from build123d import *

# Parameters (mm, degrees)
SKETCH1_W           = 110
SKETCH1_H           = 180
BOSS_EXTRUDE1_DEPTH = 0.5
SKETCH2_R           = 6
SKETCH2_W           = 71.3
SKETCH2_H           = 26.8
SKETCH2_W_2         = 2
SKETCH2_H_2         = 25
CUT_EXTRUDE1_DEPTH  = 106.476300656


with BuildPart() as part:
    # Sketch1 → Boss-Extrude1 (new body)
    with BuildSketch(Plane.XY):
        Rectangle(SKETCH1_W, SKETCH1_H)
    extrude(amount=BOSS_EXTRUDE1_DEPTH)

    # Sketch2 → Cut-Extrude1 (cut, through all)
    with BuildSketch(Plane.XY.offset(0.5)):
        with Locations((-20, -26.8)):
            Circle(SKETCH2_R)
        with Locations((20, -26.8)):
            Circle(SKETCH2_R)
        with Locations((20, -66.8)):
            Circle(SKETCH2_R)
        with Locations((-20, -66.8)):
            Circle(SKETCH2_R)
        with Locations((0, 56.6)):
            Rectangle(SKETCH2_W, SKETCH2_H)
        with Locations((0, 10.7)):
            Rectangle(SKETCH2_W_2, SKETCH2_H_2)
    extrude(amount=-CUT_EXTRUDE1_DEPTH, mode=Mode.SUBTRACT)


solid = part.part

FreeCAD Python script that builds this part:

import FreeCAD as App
import Part
import Sketcher


def add_polygon(sketch, points):
    """Adds a closed chain of lines whose ends are joined by coincident constraints."""
    first, n = sketch.GeometryCount, len(points)
    for a, b in zip(points, points[1:] + points[:1]):
        sketch.addGeometry(Part.LineSegment(App.Vector(*a, 0), App.Vector(*b, 0)), False)
    for i in range(n):
        sketch.addConstraint(Sketcher.Constraint("Coincident", first + i, 2, first + (i + 1) % n, 1))

doc = App.newDocument("Part")
body = doc.addObject("PartDesign::Body", "Body")

# Sketch on XY plane
sketch1 = body.newObject("Sketcher::SketchObject", "Sketch")
sketch1.AttachmentSupport = (doc.getObject("XY_Plane"), [""])
sketch1.MapMode = "FlatFace"
add_polygon(sketch1, [(-55, 90), (-55, -90), (55, -90), (55, 90)])  # lines 0-3
sketch1.addConstraint(Sketcher.Constraint("Vertical", 0))
sketch1.addConstraint(Sketcher.Constraint("Horizontal", 1))
sketch1.addConstraint(Sketcher.Constraint("Vertical", 2))
sketch1.addConstraint(Sketcher.Constraint("Horizontal", 3))
sketch1.addConstraint(Sketcher.Constraint("Symmetric", 0, 2, 2, 2, -1, 1))
sketch1.addConstraint(Sketcher.Constraint("DistanceX", 1, 1, 1, 2, 110.0))
sketch1.addConstraint(Sketcher.Constraint("DistanceY", 0, 2, 0, 1, 180.0))
pad1 = body.newObject("PartDesign::Pad", "Pad")
pad1.Profile = sketch1
pad1.Length = 0.5

# Sketch on XY plane
sketch2 = body.newObject("Sketcher::SketchObject", "Sketch001")
sketch2.AttachmentSupport = (doc.getObject("XY_Plane"), [""])
sketch2.MapMode = "FlatFace"
sketch2.AttachmentOffset = App.Placement(App.Vector(0, 0, 0.5), App.Rotation())
sketch2.addGeometry(Part.Circle(App.Vector(-20, -26.8, 0), App.Vector(0, 0, 1), 6), False)  # 0
sketch2.addGeometry(Part.Circle(App.Vector(20, -26.8, 0), App.Vector(0, 0, 1), 6), False)  # 1
sketch2.addGeometry(Part.Circle(App.Vector(20, -66.8, 0), App.Vector(0, 0, 1), 6), False)  # 2
sketch2.addGeometry(Part.Circle(App.Vector(-20, -66.8, 0), App.Vector(0, 0, 1), 6), False)  # 3
add_polygon(sketch2, [(-35.6, 70), (-35.6, 43.2), (35.6, 43.2), (35.6, 70)])  # lines 4-7
add_polygon(sketch2, [(-1, 23.2), (-1, -1.8), (1, -1.8), (1, 23.2)])  # lines 8-11
sketch2.addConstraint(Sketcher.Constraint("Vertical", 4))
sketch2.addConstraint(Sketcher.Constraint("Horizontal", 5))
sketch2.addConstraint(Sketcher.Constraint("Vertical", 6))
sketch2.addConstraint(Sketcher.Constraint("Horizontal", 7))
sketch2.addConstraint(Sketcher.Constraint("Vertical", 8))
sketch2.addConstraint(Sketcher.Constraint("Horizontal", 9))
sketch2.addConstraint(Sketcher.Constraint("Vertical", 10))
sketch2.addConstraint(Sketcher.Constraint("Horizontal", 11))
sketch2.addConstraint(Sketcher.Constraint("Equal", 0, 1))
sketch2.addConstraint(Sketcher.Constraint("Equal", 1, 2))
sketch2.addConstraint(Sketcher.Constraint("Equal", 2, 3))
sketch2.addConstraint(Sketcher.Constraint("Symmetric", 0, 3, 1, 3, -2))
sketch2.addConstraint(Sketcher.Constraint("Symmetric", 2, 3, 3, 3, -2))
sketch2.addConstraint(Sketcher.Constraint("Vertical", 1, 3, 2, 3))
sketch2.addConstraint(Sketcher.Constraint("Diameter", 0, 12.0))
sketch2.addConstraint(Sketcher.Constraint("DistanceX", 9, 1, 9, 2, 2.0))
sketch2.addConstraint(Sketcher.Constraint("DistanceY", 8, 2, 8, 1, 25.0))
sketch2.addConstraint(Sketcher.Constraint("DistanceX", 5, 1, 5, 2, 71.3))
sketch2.addConstraint(Sketcher.Constraint("DistanceY", 4, 2, 4, 1, 26.8))
sketch2.addConstraint(Sketcher.Constraint("DistanceX", 0, 3, -1, 1, 20.0))
sketch2.addConstraint(Sketcher.Constraint("DistanceY", -1, 1, 6, 2, 70.0))
sketch2.addConstraint(Sketcher.Constraint("DistanceX", 8, 2, -1, 1, 1.0))
sketch2.addConstraint(Sketcher.Constraint("DistanceY", 2, 3, 1, 3, 40.0))
sketch2.addConstraint(Sketcher.Constraint("DistanceY", 0, 3, 4, 2, 70.0))
sketch2.addConstraint(Sketcher.Constraint("DistanceY", 0, 3, 8, 2, 25.0))
sketch2.addConstraint(Sketcher.Constraint("DistanceX", 4, 2, -1, 1, 35.65))
pocket1 = body.newObject("PartDesign::Pocket", "Pocket")
pocket1.Profile = sketch2
pocket1.Type = "ThroughAll"

doc.recompute()
